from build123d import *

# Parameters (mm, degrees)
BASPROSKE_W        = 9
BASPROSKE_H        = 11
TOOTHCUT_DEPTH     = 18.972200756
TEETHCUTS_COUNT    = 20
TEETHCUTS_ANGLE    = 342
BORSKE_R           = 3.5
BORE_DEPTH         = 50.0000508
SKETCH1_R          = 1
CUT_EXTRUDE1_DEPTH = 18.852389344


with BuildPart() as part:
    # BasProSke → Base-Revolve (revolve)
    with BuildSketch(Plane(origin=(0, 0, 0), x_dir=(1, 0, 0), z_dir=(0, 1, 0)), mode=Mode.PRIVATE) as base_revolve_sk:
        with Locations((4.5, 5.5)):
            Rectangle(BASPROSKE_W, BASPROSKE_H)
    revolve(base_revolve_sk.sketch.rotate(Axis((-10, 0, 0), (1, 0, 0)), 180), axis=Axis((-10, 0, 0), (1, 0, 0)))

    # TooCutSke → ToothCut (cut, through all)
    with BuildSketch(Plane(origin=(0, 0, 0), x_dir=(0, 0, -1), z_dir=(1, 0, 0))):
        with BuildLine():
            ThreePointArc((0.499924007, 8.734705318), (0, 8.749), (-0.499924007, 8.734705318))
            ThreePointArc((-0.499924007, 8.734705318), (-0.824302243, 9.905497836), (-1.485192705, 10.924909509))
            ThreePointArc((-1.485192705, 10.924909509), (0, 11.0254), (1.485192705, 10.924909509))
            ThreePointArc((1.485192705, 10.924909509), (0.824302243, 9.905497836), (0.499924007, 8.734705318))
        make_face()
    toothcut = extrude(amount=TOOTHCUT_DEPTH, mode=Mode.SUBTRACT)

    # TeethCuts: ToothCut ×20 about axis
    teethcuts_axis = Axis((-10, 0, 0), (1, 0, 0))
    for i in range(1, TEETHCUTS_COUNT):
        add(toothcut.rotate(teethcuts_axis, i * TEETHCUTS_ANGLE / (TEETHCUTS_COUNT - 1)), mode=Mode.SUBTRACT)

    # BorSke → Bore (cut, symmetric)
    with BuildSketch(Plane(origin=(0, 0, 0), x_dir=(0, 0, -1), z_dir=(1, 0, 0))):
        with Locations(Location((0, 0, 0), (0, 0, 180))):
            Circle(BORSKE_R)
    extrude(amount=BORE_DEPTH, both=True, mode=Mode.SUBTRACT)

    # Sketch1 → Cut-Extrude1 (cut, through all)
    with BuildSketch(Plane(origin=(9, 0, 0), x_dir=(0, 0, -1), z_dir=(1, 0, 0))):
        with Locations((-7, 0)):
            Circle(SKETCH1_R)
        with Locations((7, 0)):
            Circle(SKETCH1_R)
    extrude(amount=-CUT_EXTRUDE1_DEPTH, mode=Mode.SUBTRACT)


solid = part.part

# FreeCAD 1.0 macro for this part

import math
import FreeCAD as App
import Part
import Sketcher
from FreeCAD import Vector


def add_polygon(sketch, points):
    """Adds a closed chain of lines whose ends are joined by coincident constraints."""
    first, n = sketch.GeometryCount, len(points)
    for a, b in zip(points, points[1:] + points[:1]):
        sketch.addGeometry(Part.LineSegment(App.Vector(*a, 0), App.Vector(*b, 0)), False)
    for i in range(n):
        sketch.addConstraint(Sketcher.Constraint("Coincident", first + i, 2, first + (i + 1) % n, 1))

doc = App.newDocument("Part")
body = doc.addObject("PartDesign::Body", "Body")

sketch1 = body.newObject("Sketcher::SketchObject", "Sketch")
sketch1.AttachmentSupport = (doc.getObject("XZ_Plane"), [""])
sketch1.MapMode = "FlatFace"
add_polygon(sketch1, [(0, -11), (0, 0), (9, 0), (9, -11)])
sketch1.addConstraint(Sketcher.Constraint("Vertical", 0))
sketch1.addConstraint(Sketcher.Constraint("Horizontal", 1))
sketch1.addConstraint(Sketcher.Constraint("Vertical", 2))
sketch1.addConstraint(Sketcher.Constraint("Horizontal", 3))
sketch1.addConstraint(Sketcher.Constraint("Coincident", 0, 2, -1, 1))
sketch1.addConstraint(Sketcher.Constraint("DistanceX", 1, 1, 1, 2, 9.0))
sketch1.addConstraint(Sketcher.Constraint("DistanceY", 0, 1, 0, 2, 11.0))
revolution = body.newObject("PartDesign::Revolution", "Revolution")
revolution.Profile = sketch1
revolution.ReferenceAxis = (sketch1, ["H_Axis"])
revolution.Angle = 360

sketch2 = body.newObject("Sketcher::SketchObject", "Sketch001")
sketch2.AttachmentSupport = (doc.getObject("YZ_Plane"), [""])
sketch2.MapMode = "FlatFace"
sketch2.addGeometry(Part.ArcOfCircle(Part.Circle(Vector(0, 0, 0), Vector(0, 0, 1), 8.749), math.radians(-3.275705), math.radians(3.275705)), False)
sketch2.addGeometry(Part.ArcOfCircle(Part.Circle(Vector(8.264487, -4.47219, 0), Vector(0, 0, 1), 4), math.radians(48.309566), math.radians(83.249005)), False)
sketch2.addGeometry(Part.ArcOfCircle(Part.Circle(Vector(0, 0, 0), Vector(0, 0, 1), 11.0254), math.radians(-7.741647), math.radians(7.741647)), False)
sketch2.addGeometry(Part.ArcOfCircle(Part.Circle(Vector(8.264487, 4.47219, 0), Vector(0, 0, 1), 4), math.radians(-83.249005), math.radians(-48.309566)), False)
sketch2.addConstraint(Sketcher.Constraint("Coincident", 0, 1, 1, 2))
sketch2.addConstraint(Sketcher.Constraint("Coincident", 1, 1, 2, 1))
sketch2.addConstraint(Sketcher.Constraint("Coincident", 2, 2, 3, 2))
sketch2.addConstraint(Sketcher.Constraint("Coincident", 3, 1, 0, 2))
sketch2.addConstraint(Sketcher.Constraint("Coincident", 0, 3, -1, 1))
sketch2.addConstraint(Sketcher.Constraint("Coincident", 2, 3, -1, 1))
sketch2.addConstraint(Sketcher.Constraint("Equal", 1, 3))
sketch2.addConstraint(Sketcher.Constraint("Symmetric", 1, 3, 3, 3, -1))
sketch2.addConstraint(Sketcher.Constraint("Radius", 1, 4.0))
sketch2.addConstraint(Sketcher.Constraint("Radius", 0, 8.749))
sketch2.addConstraint(Sketcher.Constraint("Radius", 2, 11.0254))
sketch2.addConstraint(Sketcher.Constraint("DistanceY", 1, 3, -1, 1, 4.47219))
sketch2.addConstraint(Sketcher.Constraint("DistanceX", -1, 1, 1, 1, 10.92491))
pocket1 = body.newObject("PartDesign::Pocket", "Pocket")
pocket1.Profile = sketch2
pocket1.Type = "ThroughAll"
pocket1.Reversed = True
doc.recompute()

polarpattern = body.newObject("PartDesign::PolarPattern", "PolarPattern")
polarpattern.Originals = [pocket1]
polarpattern.Axis = (doc.getObject("X_Axis"), [""])
polarpattern.Angle = 360
polarpattern.Occurrences = 20
body.Tip = polarpattern

sketch3 = body.newObject("Sketcher::SketchObject", "Sketch002")
sketch3.AttachmentSupport = (doc.getObject("YZ_Plane"), [""])
sketch3.MapMode = "FlatFace"
sketch3.addGeometry(Part.Circle(Vector(0, 0, 0), Vector(0, 0, 1), 3.5), False)
sketch3.addConstraint(Sketcher.Constraint("Coincident", 0, 3, -1, 1))
sketch3.addConstraint(Sketcher.Constraint("Diameter", 0, 7.0))
pocket2 = body.newObject("PartDesign::Pocket", "Pocket001")
pocket2.Profile = sketch3
pocket2.Length = 100.000102
pocket2.Midplane = True

sketch4 = body.newObject("Sketcher::SketchObject", "Sketch003")
sketch4.AttachmentSupport = (doc.getObject("YZ_Plane"), [""])
sketch4.MapMode = "FlatFace"
sketch4.AttachmentOffset = App.Placement(Vector(0, 0, 9), App.Rotation())
sketch4.addGeometry(Part.Circle(Vector(0, 7, 0), Vector(0, 0, 1), 1), False)
sketch4.addGeometry(Part.Circle(Vector(0, -7, 0), Vector(0, 0, 1), 1), False)
sketch4.addConstraint(Sketcher.Constraint("Equal", 0, 1))
sketch4.addConstraint(Sketcher.Constraint("Symmetric", 0, 3, 1, 3, -1, 1))
sketch4.addConstraint(Sketcher.Constraint("PointOnObject", 0, 3, -2))
sketch4.addConstraint(Sketcher.Constraint("Diameter", 0, 2.0))
sketch4.addConstraint(Sketcher.Constraint("DistanceY", -1, 1, 0, 3, 7.0))
pocket3 = body.newObject("PartDesign::Pocket", "Pocket002")
pocket3.Profile = sketch4
pocket3.Type = "ThroughAll"

doc.recompute()
